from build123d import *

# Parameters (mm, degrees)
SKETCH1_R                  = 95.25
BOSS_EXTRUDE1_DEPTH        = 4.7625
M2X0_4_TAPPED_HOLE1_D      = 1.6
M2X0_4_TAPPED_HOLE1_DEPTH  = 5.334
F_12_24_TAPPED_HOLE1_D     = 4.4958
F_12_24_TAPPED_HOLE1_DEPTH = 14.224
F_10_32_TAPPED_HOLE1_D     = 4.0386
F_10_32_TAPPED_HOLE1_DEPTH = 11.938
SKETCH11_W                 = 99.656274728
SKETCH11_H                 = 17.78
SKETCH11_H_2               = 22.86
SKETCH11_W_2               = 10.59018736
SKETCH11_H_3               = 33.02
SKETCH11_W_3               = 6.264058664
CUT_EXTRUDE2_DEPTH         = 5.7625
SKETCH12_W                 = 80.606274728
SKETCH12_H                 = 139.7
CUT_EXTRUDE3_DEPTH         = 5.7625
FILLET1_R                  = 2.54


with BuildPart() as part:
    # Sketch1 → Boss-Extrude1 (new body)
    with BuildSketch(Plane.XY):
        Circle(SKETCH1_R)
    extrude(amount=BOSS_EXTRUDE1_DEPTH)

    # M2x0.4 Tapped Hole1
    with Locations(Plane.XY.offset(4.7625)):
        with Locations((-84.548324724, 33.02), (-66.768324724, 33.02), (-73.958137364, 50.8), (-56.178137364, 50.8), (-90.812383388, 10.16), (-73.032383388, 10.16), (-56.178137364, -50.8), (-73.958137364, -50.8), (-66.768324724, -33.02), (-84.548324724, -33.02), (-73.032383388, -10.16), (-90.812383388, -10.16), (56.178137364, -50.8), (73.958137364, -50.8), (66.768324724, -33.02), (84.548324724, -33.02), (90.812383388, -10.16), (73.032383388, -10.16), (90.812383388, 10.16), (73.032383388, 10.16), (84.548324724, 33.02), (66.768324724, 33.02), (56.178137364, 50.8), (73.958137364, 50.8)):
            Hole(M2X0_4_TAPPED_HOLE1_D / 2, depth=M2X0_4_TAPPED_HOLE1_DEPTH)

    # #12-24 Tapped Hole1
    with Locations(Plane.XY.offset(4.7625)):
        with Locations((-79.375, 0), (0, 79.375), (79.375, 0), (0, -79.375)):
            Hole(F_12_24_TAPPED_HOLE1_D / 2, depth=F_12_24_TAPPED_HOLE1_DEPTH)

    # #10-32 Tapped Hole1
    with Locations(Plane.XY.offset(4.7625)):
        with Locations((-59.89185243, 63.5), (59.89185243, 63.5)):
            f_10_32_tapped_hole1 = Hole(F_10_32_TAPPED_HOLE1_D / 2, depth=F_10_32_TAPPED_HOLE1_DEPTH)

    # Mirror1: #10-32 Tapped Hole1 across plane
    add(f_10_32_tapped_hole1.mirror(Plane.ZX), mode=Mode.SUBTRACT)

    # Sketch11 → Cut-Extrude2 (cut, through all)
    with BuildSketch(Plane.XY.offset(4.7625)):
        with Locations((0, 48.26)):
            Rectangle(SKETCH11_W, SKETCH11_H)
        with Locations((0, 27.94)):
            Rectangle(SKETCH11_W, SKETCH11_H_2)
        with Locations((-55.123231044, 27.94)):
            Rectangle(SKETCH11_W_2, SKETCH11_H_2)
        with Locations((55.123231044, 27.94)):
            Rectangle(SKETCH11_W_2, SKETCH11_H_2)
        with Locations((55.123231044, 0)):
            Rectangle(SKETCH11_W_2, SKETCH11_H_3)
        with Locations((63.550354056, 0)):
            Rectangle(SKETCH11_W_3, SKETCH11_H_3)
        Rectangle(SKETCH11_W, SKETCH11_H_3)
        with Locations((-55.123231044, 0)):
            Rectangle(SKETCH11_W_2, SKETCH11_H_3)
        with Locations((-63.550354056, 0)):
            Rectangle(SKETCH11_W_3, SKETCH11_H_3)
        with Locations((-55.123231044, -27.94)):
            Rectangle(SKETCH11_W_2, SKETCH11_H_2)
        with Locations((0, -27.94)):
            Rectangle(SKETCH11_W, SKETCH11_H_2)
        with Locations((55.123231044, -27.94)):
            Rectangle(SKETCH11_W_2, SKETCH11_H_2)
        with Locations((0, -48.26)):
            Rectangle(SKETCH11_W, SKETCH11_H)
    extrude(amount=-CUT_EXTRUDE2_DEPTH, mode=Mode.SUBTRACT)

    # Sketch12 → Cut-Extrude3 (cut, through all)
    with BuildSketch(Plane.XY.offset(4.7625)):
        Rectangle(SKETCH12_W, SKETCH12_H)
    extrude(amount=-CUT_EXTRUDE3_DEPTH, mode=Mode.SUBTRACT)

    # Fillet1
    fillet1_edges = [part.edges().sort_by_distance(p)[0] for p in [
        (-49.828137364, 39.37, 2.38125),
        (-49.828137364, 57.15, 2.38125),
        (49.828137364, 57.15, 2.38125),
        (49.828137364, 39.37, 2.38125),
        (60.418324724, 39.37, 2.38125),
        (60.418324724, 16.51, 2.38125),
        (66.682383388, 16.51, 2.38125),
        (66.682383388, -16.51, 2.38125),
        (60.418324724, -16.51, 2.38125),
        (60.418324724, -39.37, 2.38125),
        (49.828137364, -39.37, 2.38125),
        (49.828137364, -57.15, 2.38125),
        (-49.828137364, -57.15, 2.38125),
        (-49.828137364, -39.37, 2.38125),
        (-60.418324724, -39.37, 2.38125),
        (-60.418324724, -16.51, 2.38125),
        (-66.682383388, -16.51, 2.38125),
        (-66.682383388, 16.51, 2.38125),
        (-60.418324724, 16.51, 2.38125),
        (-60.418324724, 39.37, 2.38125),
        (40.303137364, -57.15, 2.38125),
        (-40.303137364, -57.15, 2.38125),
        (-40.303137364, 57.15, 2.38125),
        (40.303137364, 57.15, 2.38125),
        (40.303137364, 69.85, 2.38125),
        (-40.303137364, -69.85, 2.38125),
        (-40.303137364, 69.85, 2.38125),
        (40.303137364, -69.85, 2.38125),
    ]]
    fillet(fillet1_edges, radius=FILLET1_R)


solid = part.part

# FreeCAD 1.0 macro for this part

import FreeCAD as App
import Part
import Sketcher

V = App.Vector
Q = App.Units.Quantity


def edges_at(feature, points):
    """Names of the edges that pass closest to the given points."""
    edges = feature.Shape.Edges
    near = lambda p: min(range(len(edges)), key=lambda i: edges[i].distToShape(Part.Vertex(*p))[0])
    return sorted({f"Edge{near(p) + 1}" for p in points})


def add_polygon(sketch, points):
    """Adds a closed chain of lines whose ends are joined by coincident constraints."""
    first, n = sketch.GeometryCount, len(points)
    for a, b in zip(points, points[1:] + points[:1]):
        sketch.addGeometry(Part.LineSegment(App.Vector(*a, 0), App.Vector(*b, 0)), False)
    for i in range(n):
        sketch.addConstraint(Sketcher.Constraint("Coincident", first + i, 2, first + (i + 1) % n, 1))

doc = App.newDocument("Part")
params = doc.addObject("Spreadsheet::Sheet", "Params")
for row, (alias, value) in enumerate([
    ("sketch1_diameter", "7.5 in"),
    ("pad1_length", "0.1875 in"),
    ("hole_diameter", "1.6 mm"),
    ("hole_depth", "0.21 in"),
    ("sketch3_diameter", "0.177 in"),
    ("hole2_diameter", "0.177 in"),
    ("hole2_depth", "0.56 in"),
    ("sketch4_diameter", "0.159 in"),
    ("hole3_diameter", "0.159 in"),
    ("hole3_depth", "0.47 in"),
    ("sketch5_height", "0.7 in"),
    ("sketch5_height2", "0.9 in"),
    ("sketch5_height3", "1.3 in"),
    ("sketch6_height", "5.5 in"),
    ("fillet_radius", "0.1 in"),
], start=1):
    params.set(f"A{row}", alias)
    params.set(f"B{row}", "=" + value)
    params.setAlias(f"B{row}", alias)

body = doc.addObject("PartDesign::Body", "Body")

# Sketch on XY plane
sketch1 = body.newObject("Sketcher::SketchObject", "Sketch")
sketch1.AttachmentSupport = (doc.getObject("XY_Plane"), [""])
sketch1.MapMode = "FlatFace"
sketch1.addGeometry(Part.Circle(V(0, 0, 0), V(0, 0, 1), 95), False)
sketch1.addConstraint([
    Sketcher.Constraint("Coincident", 0, 3, -1, 1),
    Sketcher.Constraint("Diameter", 0, Q("7.5 in")),
])
sketch1.setExpression("Constraints[1]", "Params.sketch1_diameter")
pad1 = body.newObject("PartDesign::Pad", "Pad")
pad1.Profile = sketch1
pad1.setExpression("Length", "Params.pad1_length")

# Sketch on XY plane
sketch2 = body.newObject("Sketcher::SketchObject", "Sketch001")
sketch2.AttachmentSupport = (doc.getObject("XY_Plane"), [""])
sketch2.MapMode = "FlatFace"
sketch2.AttachmentOffset = App.Placement(V(0, 0, 0.1875 * 25.4), App.Rotation())
sketch2.addGeometry([
    Part.Circle(V(-84.5, 33, 0), V(0, 0, 1), 0.8),  # 0
    Part.Circle(V(-66.8, 33, 0), V(0, 0, 1), 0.8),  # 1
    Part.Circle(V(-74, 50.8, 0), V(0, 0, 1), 0.8),  # 2
    Part.Circle(V(-56.2, 50.8, 0), V(0, 0, 1), 0.8),  # 3
    Part.Circle(V(-90.8, 10.2, 0), V(0, 0, 1), 0.8),  # 4
    Part.Circle(V(-73, 10.2, 0), V(0, 0, 1), 0.8),  # 5
    Part.Circle(V(-56.2, -50.8, 0), V(0, 0, 1), 0.8),  # 6
    Part.Circle(V(-74, -50.8, 0), V(0, 0, 1), 0.8),  # 7
    Part.Circle(V(-66.8, -33, 0), V(0, 0, 1), 0.8),  # 8
    Part.Circle(V(-84.5, -33, 0), V(0, 0, 1), 0.8),  # 9
    Part.Circle(V(-73, -10.2, 0), V(0, 0, 1), 0.8),  # 10
    Part.Circle(V(-90.8, -10.2, 0), V(0, 0, 1), 0.8),  # 11
    Part.Circle(V(56.2, -50.8, 0), V(0, 0, 1), 0.8),  # 12
    Part.Circle(V(74, -50.8, 0), V(0, 0, 1), 0.8),  # 13
    Part.Circle(V(66.8, -33, 0), V(0, 0, 1), 0.8),  # 14
    Part.Circle(V(84.5, -33, 0), V(0, 0, 1), 0.8),  # 15
    Part.Circle(V(90.8, -10.2, 0), V(0, 0, 1), 0.8),  # 16
    Part.Circle(V(73, -10.2, 0), V(0, 0, 1), 0.8),  # 17
    Part.Circle(V(90.8, 10.2, 0), V(0, 0, 1), 0.8),  # 18
    Part.Circle(V(73, 10.2, 0), V(0, 0, 1), 0.8),  # 19
    Part.Circle(V(84.5, 33, 0), V(0, 0, 1), 0.8),  # 20
    Part.Circle(V(66.8, 33, 0), V(0, 0, 1), 0.8),  # 21
    Part.Circle(V(56.2, 50.8, 0), V(0, 0, 1), 0.8),  # 22
    Part.Circle(V(74, 50.8, 0), V(0, 0, 1), 0.8),  # 23
], False)
sketch2.addConstraint([
    Sketcher.Constraint("Equal", 0, 1),
    Sketcher.Constraint("Equal", 1, 2),
    Sketcher.Constraint("Equal", 2, 3),
    Sketcher.Constraint("Equal", 3, 4),
    Sketcher.Constraint("Equal", 4, 5),
    Sketcher.Constraint("Equal", 5, 6),
    Sketcher.Constraint("Equal", 6, 7),
    Sketcher.Constraint("Equal", 7, 8),
    Sketcher.Constraint("Equal", 8, 9),
    Sketcher.Constraint("Equal", 9, 10),
    Sketcher.Constraint("Equal", 10, 11),
    Sketcher.Constraint("Equal", 11, 12),
    Sketcher.Constraint("Equal", 12, 13),
    Sketcher.Constraint("Equal", 13, 14),
    Sketcher.Constraint("Equal", 14, 15),
    Sketcher.Constraint("Equal", 15, 16),
    Sketcher.Constraint("Equal", 16, 17),
    Sketcher.Constraint("Equal", 17, 18),
    Sketcher.Constraint("Equal", 18, 19),
    Sketcher.Constraint("Equal", 19, 20),
    Sketcher.Constraint("Equal", 20, 21),
    Sketcher.Constraint("Equal", 21, 22),
    Sketcher.Constraint("Equal", 22, 23),
    Sketcher.Constraint("Symmetric", 3, 3, 12, 3, -1, 1),
    Sketcher.Constraint("Symmetric", 2, 3, 13, 3, -1, 1),
    Sketcher.Constraint("Symmetric", 1, 3, 14, 3, -1, 1),
    Sketcher.Constraint("Symmetric", 0, 3, 15, 3, -1, 1),
    Sketcher.Constraint("Symmetric", 4, 3, 16, 3, -1, 1),
    Sketcher.Constraint("Symmetric", 5, 3, 17, 3, -1, 1),
    Sketcher.Constraint("Symmetric", 11, 3, 18, 3, -1, 1),
    Sketcher.Constraint("Symmetric", 10, 3, 19, 3, -1, 1),
    Sketcher.Constraint("Symmetric", 9, 3, 20, 3, -1, 1),
    Sketcher.Constraint("Symmetric", 8, 3, 21, 3, -1, 1),
    Sketcher.Constraint("Symmetric", 6, 3, 22, 3, -1, 1),
    Sketcher.Constraint("Symmetric", 7, 3, 23, 3, -1, 1),
    Sketcher.Constraint("Symmetric", 6, 3, 12, 3, -2),
    Sketcher.Constraint("Symmetric", 7, 3, 13, 3, -2),
    Sketcher.Constraint("Symmetric", 8, 3, 14, 3, -2),
    Sketcher.Constraint("Symmetric", 9, 3, 15, 3, -2),
    Sketcher.Constraint("Symmetric", 11, 3, 16, 3, -2),
    Sketcher.Constraint("Symmetric", 10, 3, 17, 3, -2),
    Sketcher.Constraint("Horizontal", 0, 3, 1, 3),
    Sketcher.Constraint("Horizontal", 2, 3, 3, 3),
    Sketcher.Constraint("Horizontal", 4, 3, 5, 3),
    Sketcher.Constraint("DistanceY", -1, 1, 2, 3, Q("2 in")),
    Sketcher.Constraint("DistanceY", -1, 1, 0, 3, Q("1.3 in")),
    Sketcher.Constraint("DistanceY", -1, 1, 4, 3, Q("0.4 in")),
    Sketcher.Constraint("DistanceX", 0, 3, 1, 3, Q("0.7 in")),
    Sketcher.Constraint("DistanceX", 2, 3, 3, 3, Q("0.7 in")),
    Sketcher.Constraint("DistanceX", 4, 3, 5, 3, Q("0.7 in")),
    Sketcher.Constraint("Diameter", 0, Q("1.6 mm")),
    Sketcher.Constraint("DistanceX", 4, 3, 0, 3, Q("6.264059 mm")),
    Sketcher.Constraint("DistanceX", 10, 3, 12, 3, Q("129.210521 mm")),
    Sketcher.Constraint("DistanceX", 8, 3, 14, 3, Q("133.536649 mm")),
])
doc.recompute()
hole = body.newObject("PartDesign::Hole", "Hole")
hole.Profile = sketch2
hole.ThreadType = "None"
hole.setExpression("Diameter", "Params.hole_diameter")
hole.DepthType = "Dimension"
hole.setExpression("Depth", "Params.hole_depth")
hole.DrillPoint = "Flat"

# Sketch on XY plane
sketch3 = body.newObject("Sketcher::SketchObject", "Sketch002")
sketch3.AttachmentSupport = (doc.getObject("XY_Plane"), [""])
sketch3.MapMode = "FlatFace"
sketch3.AttachmentOffset = App.Placement(V(0, 0, 0.1875 * 25.4), App.Rotation())
sketch3.addGeometry([
    Part.Circle(V(-79.4, 0, 0), V(0, 0, 1), 2.2),
    Part.Circle(V(0, 79.4, 0), V(0, 0, 1), 2.2),
    Part.Circle(V(79.4, 0, 0), V(0, 0, 1), 2.2),
    Part.Circle(V(0, -79.4, 0), V(0, 0, 1), 2.2),
], False)
sketch3.addConstraint([
    Sketcher.Constraint("Equal", 0, 1),
    Sketcher.Constraint("Equal", 1, 2),
    Sketcher.Constraint("Equal", 2, 3),
    Sketcher.Constraint("Symmetric", 0, 3, 2, 3, -1, 1),
    Sketcher.Constraint("Symmetric", 1, 3, 3, 3, -1, 1),
    Sketcher.Constraint("PointOnObject", 0, 3, -1),
    Sketcher.Constraint("PointOnObject", 1, 3, -2),
    Sketcher.Constraint("Diameter", 0, Q("0.177 in")),
    Sketcher.Constraint("DistanceX", 0, 3, 2, 3, Q("6.25 in")),
    Sketcher.Constraint("DistanceY", 3, 3, 1, 3, Q("6.25 in")),
])
sketch3.setExpression("Constraints[7]", "Params.sketch3_diameter")
doc.recompute()
hole2 = body.newObject("PartDesign::Hole", "Hole001")
hole2.Profile = sketch3
hole2.ThreadType = "None"
hole2.setExpression("Diameter", "Params.hole2_diameter")
hole2.DepthType = "Dimension"
hole2.setExpression("Depth", "Params.hole2_depth")
hole2.DrillPoint = "Flat"

# Sketch on XY plane
sketch4 = body.newObject("Sketcher::SketchObject", "Sketch003")
sketch4.AttachmentSupport = (doc.getObject("XY_Plane"), [""])
sketch4.MapMode = "FlatFace"
sketch4.AttachmentOffset = App.Placement(V(0, 0, 0.1875 * 25.4), App.Rotation())
sketch4.addGeometry([
    Part.Circle(V(-59.9, 63.5, 0), V(0, 0, 1), 2),
    Part.Circle(V(59.9, 63.5, 0), V(0, 0, 1), 2),
], False)
sketch4.addConstraint([
    Sketcher.Constraint("Equal", 0, 1),
    Sketcher.Constraint("Symmetric", 0, 3, 1, 3, -2),
    Sketcher.Constraint("Diameter", 0, Q("0.159 in")),
    Sketcher.Constraint("DistanceY", -1, 1, 0, 3, Q("2.5 in")),
    Sketcher.Constraint("DistanceX", 0, 3, -1, 1, Q("59.891852 mm")),
])
sketch4.setExpression("Constraints[2]", "Params.sketch4_diameter")
doc.recompute()
hole3 = body.newObject("PartDesign::Hole", "Hole002")
hole3.Profile = sketch4
hole3.ThreadType = "None"
hole3.setExpression("Diameter", "Params.hole3_diameter")
hole3.DepthType = "Dimension"
hole3.setExpression("Depth", "Params.hole3_depth")
hole3.DrillPoint = "Flat"
doc.recompute()

mirrored = body.newObject("PartDesign::Mirrored", "Mirrored")
mirrored.Originals = [hole3]
mirrored.MirrorPlane = (doc.getObject("XZ_Plane"), [""])
body.Tip = mirrored

# Sketch on XY plane
sketch5 = body.newObject("Sketcher::SketchObject", "Sketch004")
sketch5.AttachmentSupport = (doc.getObject("XY_Plane"), [""])
sketch5.MapMode = "FlatFace"
sketch5.AttachmentOffset = App.Placement(V(0, 0, 0.1875 * 25.4), App.Rotation())
add_polygon(sketch5, [(-50, 57), (-50, 39), (-60, 39), (-60, 17), (-67, 17), (-67, -17), (-60, -17), (-60, -39), (-50, -39), (-50, -57), (50, -57), (50, -39), (60, -39), (60, -17), (67, -17), (67, 17), (60, 17), (60, 39), (50, 39), (50, 57)])  # lines 0-19
sketch5.addConstraint([
    Sketcher.Constraint("Vertical", 0),
    Sketcher.Constraint("Horizontal", 1),
    Sketcher.Constraint("Vertical", 2),
    Sketcher.Constraint("Horizontal", 3),
    Sketcher.Constraint("Vertical", 4),
    Sketcher.Constraint("Horizontal", 5),
    Sketcher.Constraint("Vertical", 6),
    Sketcher.Constraint("Horizontal", 7),
    Sketcher.Constraint("Vertical", 8),
    Sketcher.Constraint("Horizontal", 9),
    Sketcher.Constraint("Vertical", 10),
    Sketcher.Constraint("Horizontal", 11),
    Sketcher.Constraint("Vertical", 12),
    Sketcher.Constraint("Horizontal", 13),
    Sketcher.Constraint("Vertical", 14),
    Sketcher.Constraint("Horizontal", 15),
    Sketcher.Constraint("Vertical", 16),
    Sketcher.Constraint("Horizontal", 17),
    Sketcher.Constraint("Vertical", 18),
    Sketcher.Constraint("Horizontal", 19),
    Sketcher.Constraint("Symmetric", 0, 2, 10, 2, -1, 1),
    Sketcher.Constraint("Symmetric", 2, 2, 12, 2, -1, 1),
    Sketcher.Constraint("Symmetric", 4, 2, 14, 2, -1, 1),
    Sketcher.Constraint("Symmetric", 6, 2, 16, 2, -1, 1),
    Sketcher.Constraint("Symmetric", 8, 2, 18, 2, -1, 1),
    Sketcher.Constraint("Symmetric", 7, 2, 10, 2, -2),
    Sketcher.Constraint("Symmetric", 5, 2, 12, 2, -2),
    Sketcher.Constraint("DistanceY", 0, 2, 0, 1, Q("0.7 in")),
    Sketcher.Constraint("DistanceY", 2, 2, 2, 1, Q("0.9 in")),
    Sketcher.Constraint("DistanceY", 4, 2, 4, 1, Q("1.3 in")),
    Sketcher.Constraint("DistanceX", 3, 2, 3, 1, Q("6.264059 mm")),
    Sketcher.Constraint("DistanceX", 1, 2, 1, 1, Q("10.590187 mm")),
    Sketcher.Constraint("DistanceX", 9, 1, 9, 2, Q("99.656275 mm")),
])
sketch5.setExpression("Constraints[47]", "Params.sketch5_height")
sketch5.setExpression("Constraints[48]", "Params.sketch5_height2")
sketch5.setExpression("Constraints[49]", "Params.sketch5_height3")
pocket1 = body.newObject("PartDesign::Pocket", "Pocket")
pocket1.Profile = sketch5
pocket1.Type = "ThroughAll"

# Sketch on XY plane
sketch6 = body.newObject("Sketcher::SketchObject", "Sketch005")
sketch6.AttachmentSupport = (doc.getObject("XY_Plane"), [""])
sketch6.MapMode = "FlatFace"
sketch6.AttachmentOffset = App.Placement(V(0, 0, 0.1875 * 25.4), App.Rotation())
add_polygon(sketch6, [(-40, 70), (-40, -70), (40, -70), (40, 70)])  # lines 0-3
sketch6.addConstraint([
    Sketcher.Constraint("Vertical", 0),
    Sketcher.Constraint("Horizontal", 1),
    Sketcher.Constraint("Vertical", 2),
    Sketcher.Constraint("Horizontal", 3),
    Sketcher.Constraint("Symmetric", 0, 2, 2, 2, -1, 1),
    Sketcher.Constraint("DistanceY", 0, 2, 0, 1, Q("5.5 in")),
    Sketcher.Constraint("DistanceX", 1, 1, 1, 2, Q("80.606275 mm")),
])
sketch6.setExpression("Constraints[9]", "Params.sketch6_height")
pocket2 = body.newObject("PartDesign::Pocket", "Pocket001")
pocket2.Profile = sketch6
pocket2.Type = "ThroughAll"
doc.recompute()

fillet = body.newObject("PartDesign::Fillet", "Fillet")
fillet.Base = (pocket2, edges_at(pocket2, [
    (-49.828, 39.37, 2.381),
    (-49.828, 57.15, 2.381),
    (49.828, 57.15, 2.381),
    (49.828, 39.37, 2.381),
    (60.418, 39.37, 2.381),
    (60.418, 16.51, 2.381),
    (66.682, 16.51, 2.381),
    (66.682, -16.51, 2.381),
    (60.418, -16.51, 2.381),
    (60.418, -39.37, 2.381),
    (49.828, -39.37, 2.381),
    (49.828, -57.15, 2.381),
    (-49.828, -57.15, 2.381),
    (-49.828, -39.37, 2.381),
    (-60.418, -39.37, 2.381),
    (-60.418, -16.51, 2.381),
    (-66.682, -16.51, 2.381),
    (-66.682, 16.51, 2.381),
    (-60.418, 16.51, 2.381),
    (-60.418, 39.37, 2.381),
    (40.303, -57.15, 2.381),
    (-40.303, -57.15, 2.381),
    (-40.303, 57.15, 2.381),
    (40.303, 57.15, 2.381),
    (40.303, 69.85, 2.381),
    (-40.303, -69.85, 2.381),
    (-40.303, 69.85, 2.381),
    (40.303, -69.85, 2.381),
]))
fillet.setExpression("Radius", "Params.fillet_radius")

doc.recompute()
